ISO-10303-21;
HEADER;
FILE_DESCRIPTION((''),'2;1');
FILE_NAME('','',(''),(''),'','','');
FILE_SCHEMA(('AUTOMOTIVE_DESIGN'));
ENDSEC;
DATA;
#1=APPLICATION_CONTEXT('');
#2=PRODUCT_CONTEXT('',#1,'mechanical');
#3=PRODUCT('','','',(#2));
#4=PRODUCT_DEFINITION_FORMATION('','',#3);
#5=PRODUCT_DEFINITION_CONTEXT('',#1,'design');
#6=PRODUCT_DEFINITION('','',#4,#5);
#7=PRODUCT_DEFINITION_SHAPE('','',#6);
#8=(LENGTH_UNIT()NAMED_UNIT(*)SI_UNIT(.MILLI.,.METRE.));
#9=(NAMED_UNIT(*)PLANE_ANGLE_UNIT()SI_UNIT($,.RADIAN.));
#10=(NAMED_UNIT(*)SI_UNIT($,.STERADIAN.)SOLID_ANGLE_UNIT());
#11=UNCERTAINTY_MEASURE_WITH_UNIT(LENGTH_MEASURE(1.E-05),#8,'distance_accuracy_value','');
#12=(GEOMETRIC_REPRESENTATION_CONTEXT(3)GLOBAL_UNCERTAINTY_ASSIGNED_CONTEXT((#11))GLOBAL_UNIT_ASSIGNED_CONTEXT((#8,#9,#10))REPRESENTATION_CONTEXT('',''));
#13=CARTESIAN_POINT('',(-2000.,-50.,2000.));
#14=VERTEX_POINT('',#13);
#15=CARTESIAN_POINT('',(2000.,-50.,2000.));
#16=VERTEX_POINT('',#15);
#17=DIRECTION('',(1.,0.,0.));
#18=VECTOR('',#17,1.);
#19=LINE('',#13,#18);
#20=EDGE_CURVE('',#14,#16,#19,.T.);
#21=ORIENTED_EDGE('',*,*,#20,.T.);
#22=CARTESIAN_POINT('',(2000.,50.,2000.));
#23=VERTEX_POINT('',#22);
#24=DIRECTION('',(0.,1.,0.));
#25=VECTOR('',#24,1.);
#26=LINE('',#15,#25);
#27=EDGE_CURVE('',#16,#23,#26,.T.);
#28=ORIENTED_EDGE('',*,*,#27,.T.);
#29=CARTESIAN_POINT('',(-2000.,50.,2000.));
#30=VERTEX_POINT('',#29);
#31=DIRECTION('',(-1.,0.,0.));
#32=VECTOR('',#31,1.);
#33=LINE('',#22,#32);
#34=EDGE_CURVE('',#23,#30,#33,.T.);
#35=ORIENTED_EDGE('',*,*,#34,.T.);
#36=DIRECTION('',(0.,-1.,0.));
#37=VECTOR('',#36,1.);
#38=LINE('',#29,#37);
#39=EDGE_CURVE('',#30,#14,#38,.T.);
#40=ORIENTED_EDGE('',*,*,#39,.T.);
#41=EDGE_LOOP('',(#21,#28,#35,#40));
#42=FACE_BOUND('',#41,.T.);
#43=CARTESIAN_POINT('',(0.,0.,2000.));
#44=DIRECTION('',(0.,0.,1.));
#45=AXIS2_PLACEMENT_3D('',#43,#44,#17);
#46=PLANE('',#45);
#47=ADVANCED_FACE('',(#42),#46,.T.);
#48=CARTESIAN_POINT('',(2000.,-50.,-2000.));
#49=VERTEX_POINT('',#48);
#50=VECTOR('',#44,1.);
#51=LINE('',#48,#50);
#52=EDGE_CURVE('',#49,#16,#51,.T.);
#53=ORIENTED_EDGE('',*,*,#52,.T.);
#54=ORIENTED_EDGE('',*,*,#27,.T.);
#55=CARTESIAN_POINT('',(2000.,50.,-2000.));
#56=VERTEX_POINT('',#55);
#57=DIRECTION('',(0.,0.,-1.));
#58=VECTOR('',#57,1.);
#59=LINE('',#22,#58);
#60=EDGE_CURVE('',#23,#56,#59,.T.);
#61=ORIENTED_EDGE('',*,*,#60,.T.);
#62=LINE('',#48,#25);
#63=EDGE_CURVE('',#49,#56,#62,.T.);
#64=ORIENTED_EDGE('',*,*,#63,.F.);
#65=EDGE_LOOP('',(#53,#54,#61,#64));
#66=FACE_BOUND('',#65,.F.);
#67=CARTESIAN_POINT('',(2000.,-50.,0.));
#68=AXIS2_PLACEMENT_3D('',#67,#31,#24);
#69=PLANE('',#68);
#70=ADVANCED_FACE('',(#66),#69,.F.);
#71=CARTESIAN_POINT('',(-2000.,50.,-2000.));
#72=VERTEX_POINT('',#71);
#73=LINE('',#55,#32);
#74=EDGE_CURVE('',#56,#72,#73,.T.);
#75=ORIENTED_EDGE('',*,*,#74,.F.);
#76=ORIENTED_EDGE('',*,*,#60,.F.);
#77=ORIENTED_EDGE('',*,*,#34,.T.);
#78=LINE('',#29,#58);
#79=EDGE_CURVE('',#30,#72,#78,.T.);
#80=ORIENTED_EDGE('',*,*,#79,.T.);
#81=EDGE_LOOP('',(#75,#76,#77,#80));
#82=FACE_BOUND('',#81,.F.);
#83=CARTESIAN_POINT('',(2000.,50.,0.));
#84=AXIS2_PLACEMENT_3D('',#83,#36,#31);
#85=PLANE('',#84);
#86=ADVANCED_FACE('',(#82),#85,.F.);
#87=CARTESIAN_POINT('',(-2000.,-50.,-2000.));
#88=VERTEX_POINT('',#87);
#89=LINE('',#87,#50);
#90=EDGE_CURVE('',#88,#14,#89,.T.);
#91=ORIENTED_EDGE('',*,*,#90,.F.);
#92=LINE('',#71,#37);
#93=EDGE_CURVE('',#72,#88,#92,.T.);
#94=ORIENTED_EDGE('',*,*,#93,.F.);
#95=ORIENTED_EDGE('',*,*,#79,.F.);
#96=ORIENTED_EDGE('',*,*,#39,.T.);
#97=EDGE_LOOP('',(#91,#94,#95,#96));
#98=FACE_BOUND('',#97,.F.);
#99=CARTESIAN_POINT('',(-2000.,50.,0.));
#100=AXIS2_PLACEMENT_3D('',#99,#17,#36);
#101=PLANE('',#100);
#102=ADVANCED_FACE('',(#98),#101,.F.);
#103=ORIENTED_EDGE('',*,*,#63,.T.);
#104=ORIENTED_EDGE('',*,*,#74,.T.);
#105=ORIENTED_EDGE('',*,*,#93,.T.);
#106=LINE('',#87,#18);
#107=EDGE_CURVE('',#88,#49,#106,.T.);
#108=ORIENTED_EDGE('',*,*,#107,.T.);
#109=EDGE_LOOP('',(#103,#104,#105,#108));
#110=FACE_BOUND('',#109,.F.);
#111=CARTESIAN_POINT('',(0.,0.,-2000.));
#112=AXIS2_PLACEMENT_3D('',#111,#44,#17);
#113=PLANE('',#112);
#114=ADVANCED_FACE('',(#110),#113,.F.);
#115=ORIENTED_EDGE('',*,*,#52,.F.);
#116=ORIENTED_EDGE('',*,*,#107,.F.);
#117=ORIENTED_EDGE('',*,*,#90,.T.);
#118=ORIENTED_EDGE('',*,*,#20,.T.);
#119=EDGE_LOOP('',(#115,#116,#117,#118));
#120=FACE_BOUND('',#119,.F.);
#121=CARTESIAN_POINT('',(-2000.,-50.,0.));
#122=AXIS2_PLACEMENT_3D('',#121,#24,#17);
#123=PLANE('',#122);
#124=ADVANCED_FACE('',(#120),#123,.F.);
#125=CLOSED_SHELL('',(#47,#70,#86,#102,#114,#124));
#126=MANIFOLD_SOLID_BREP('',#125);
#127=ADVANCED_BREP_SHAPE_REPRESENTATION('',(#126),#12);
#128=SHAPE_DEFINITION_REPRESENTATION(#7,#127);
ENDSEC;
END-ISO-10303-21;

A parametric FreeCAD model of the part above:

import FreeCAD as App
import Part
import Sketcher

V = App.Vector
Q = App.Units.Quantity


def add_polygon(sketch, points):
    """Adds a closed chain of lines whose ends are joined by coincident constraints."""
    first, n = sketch.GeometryCount, len(points)
    for a, b in zip(points, points[1:] + points[:1]):
        sketch.addGeometry(Part.LineSegment(App.Vector(*a, 0), App.Vector(*b, 0)), False)
    for i in range(n):
        sketch.addConstraint(Sketcher.Constraint("Coincident", first + i, 2, first + (i + 1) % n, 1))

doc = App.newDocument("Part")
body = doc.addObject("PartDesign::Body", "Body")

# Sketch on XY plane
sketch1 = body.newObject("Sketcher::SketchObject", "Sketch")
sketch1.AttachmentSupport = (doc.getObject("XY_Plane"), [""])
sketch1.MapMode = "FlatFace"
add_polygon(sketch1, [(-2000, 50), (-2000, -50), (2000, -50), (2000, 50)])  # lines 0-3
sketch1.addConstraint(Sketcher.Constraint("Vertical", 0))
sketch1.addConstraint(Sketcher.Constraint("Horizontal", 1))
sketch1.addConstraint(Sketcher.Constraint("Vertical", 2))
sketch1.addConstraint(Sketcher.Constraint("Horizontal", 3))
sketch1.addConstraint(Sketcher.Constraint("Symmetric", 0, 2, 2, 2, -1, 1))
sketch1.addConstraint(Sketcher.Constraint("DistanceX", 1, 1, 1, 2, Q("4000 mm")))
sketch1.addConstraint(Sketcher.Constraint("DistanceY", 0, 2, 0, 1, Q("100 mm")))
pad1 = body.newObject("PartDesign::Pad", "Pad")
pad1.Profile = sketch1
pad1.Length = 4000
pad1.Midplane = True

doc.recompute()
